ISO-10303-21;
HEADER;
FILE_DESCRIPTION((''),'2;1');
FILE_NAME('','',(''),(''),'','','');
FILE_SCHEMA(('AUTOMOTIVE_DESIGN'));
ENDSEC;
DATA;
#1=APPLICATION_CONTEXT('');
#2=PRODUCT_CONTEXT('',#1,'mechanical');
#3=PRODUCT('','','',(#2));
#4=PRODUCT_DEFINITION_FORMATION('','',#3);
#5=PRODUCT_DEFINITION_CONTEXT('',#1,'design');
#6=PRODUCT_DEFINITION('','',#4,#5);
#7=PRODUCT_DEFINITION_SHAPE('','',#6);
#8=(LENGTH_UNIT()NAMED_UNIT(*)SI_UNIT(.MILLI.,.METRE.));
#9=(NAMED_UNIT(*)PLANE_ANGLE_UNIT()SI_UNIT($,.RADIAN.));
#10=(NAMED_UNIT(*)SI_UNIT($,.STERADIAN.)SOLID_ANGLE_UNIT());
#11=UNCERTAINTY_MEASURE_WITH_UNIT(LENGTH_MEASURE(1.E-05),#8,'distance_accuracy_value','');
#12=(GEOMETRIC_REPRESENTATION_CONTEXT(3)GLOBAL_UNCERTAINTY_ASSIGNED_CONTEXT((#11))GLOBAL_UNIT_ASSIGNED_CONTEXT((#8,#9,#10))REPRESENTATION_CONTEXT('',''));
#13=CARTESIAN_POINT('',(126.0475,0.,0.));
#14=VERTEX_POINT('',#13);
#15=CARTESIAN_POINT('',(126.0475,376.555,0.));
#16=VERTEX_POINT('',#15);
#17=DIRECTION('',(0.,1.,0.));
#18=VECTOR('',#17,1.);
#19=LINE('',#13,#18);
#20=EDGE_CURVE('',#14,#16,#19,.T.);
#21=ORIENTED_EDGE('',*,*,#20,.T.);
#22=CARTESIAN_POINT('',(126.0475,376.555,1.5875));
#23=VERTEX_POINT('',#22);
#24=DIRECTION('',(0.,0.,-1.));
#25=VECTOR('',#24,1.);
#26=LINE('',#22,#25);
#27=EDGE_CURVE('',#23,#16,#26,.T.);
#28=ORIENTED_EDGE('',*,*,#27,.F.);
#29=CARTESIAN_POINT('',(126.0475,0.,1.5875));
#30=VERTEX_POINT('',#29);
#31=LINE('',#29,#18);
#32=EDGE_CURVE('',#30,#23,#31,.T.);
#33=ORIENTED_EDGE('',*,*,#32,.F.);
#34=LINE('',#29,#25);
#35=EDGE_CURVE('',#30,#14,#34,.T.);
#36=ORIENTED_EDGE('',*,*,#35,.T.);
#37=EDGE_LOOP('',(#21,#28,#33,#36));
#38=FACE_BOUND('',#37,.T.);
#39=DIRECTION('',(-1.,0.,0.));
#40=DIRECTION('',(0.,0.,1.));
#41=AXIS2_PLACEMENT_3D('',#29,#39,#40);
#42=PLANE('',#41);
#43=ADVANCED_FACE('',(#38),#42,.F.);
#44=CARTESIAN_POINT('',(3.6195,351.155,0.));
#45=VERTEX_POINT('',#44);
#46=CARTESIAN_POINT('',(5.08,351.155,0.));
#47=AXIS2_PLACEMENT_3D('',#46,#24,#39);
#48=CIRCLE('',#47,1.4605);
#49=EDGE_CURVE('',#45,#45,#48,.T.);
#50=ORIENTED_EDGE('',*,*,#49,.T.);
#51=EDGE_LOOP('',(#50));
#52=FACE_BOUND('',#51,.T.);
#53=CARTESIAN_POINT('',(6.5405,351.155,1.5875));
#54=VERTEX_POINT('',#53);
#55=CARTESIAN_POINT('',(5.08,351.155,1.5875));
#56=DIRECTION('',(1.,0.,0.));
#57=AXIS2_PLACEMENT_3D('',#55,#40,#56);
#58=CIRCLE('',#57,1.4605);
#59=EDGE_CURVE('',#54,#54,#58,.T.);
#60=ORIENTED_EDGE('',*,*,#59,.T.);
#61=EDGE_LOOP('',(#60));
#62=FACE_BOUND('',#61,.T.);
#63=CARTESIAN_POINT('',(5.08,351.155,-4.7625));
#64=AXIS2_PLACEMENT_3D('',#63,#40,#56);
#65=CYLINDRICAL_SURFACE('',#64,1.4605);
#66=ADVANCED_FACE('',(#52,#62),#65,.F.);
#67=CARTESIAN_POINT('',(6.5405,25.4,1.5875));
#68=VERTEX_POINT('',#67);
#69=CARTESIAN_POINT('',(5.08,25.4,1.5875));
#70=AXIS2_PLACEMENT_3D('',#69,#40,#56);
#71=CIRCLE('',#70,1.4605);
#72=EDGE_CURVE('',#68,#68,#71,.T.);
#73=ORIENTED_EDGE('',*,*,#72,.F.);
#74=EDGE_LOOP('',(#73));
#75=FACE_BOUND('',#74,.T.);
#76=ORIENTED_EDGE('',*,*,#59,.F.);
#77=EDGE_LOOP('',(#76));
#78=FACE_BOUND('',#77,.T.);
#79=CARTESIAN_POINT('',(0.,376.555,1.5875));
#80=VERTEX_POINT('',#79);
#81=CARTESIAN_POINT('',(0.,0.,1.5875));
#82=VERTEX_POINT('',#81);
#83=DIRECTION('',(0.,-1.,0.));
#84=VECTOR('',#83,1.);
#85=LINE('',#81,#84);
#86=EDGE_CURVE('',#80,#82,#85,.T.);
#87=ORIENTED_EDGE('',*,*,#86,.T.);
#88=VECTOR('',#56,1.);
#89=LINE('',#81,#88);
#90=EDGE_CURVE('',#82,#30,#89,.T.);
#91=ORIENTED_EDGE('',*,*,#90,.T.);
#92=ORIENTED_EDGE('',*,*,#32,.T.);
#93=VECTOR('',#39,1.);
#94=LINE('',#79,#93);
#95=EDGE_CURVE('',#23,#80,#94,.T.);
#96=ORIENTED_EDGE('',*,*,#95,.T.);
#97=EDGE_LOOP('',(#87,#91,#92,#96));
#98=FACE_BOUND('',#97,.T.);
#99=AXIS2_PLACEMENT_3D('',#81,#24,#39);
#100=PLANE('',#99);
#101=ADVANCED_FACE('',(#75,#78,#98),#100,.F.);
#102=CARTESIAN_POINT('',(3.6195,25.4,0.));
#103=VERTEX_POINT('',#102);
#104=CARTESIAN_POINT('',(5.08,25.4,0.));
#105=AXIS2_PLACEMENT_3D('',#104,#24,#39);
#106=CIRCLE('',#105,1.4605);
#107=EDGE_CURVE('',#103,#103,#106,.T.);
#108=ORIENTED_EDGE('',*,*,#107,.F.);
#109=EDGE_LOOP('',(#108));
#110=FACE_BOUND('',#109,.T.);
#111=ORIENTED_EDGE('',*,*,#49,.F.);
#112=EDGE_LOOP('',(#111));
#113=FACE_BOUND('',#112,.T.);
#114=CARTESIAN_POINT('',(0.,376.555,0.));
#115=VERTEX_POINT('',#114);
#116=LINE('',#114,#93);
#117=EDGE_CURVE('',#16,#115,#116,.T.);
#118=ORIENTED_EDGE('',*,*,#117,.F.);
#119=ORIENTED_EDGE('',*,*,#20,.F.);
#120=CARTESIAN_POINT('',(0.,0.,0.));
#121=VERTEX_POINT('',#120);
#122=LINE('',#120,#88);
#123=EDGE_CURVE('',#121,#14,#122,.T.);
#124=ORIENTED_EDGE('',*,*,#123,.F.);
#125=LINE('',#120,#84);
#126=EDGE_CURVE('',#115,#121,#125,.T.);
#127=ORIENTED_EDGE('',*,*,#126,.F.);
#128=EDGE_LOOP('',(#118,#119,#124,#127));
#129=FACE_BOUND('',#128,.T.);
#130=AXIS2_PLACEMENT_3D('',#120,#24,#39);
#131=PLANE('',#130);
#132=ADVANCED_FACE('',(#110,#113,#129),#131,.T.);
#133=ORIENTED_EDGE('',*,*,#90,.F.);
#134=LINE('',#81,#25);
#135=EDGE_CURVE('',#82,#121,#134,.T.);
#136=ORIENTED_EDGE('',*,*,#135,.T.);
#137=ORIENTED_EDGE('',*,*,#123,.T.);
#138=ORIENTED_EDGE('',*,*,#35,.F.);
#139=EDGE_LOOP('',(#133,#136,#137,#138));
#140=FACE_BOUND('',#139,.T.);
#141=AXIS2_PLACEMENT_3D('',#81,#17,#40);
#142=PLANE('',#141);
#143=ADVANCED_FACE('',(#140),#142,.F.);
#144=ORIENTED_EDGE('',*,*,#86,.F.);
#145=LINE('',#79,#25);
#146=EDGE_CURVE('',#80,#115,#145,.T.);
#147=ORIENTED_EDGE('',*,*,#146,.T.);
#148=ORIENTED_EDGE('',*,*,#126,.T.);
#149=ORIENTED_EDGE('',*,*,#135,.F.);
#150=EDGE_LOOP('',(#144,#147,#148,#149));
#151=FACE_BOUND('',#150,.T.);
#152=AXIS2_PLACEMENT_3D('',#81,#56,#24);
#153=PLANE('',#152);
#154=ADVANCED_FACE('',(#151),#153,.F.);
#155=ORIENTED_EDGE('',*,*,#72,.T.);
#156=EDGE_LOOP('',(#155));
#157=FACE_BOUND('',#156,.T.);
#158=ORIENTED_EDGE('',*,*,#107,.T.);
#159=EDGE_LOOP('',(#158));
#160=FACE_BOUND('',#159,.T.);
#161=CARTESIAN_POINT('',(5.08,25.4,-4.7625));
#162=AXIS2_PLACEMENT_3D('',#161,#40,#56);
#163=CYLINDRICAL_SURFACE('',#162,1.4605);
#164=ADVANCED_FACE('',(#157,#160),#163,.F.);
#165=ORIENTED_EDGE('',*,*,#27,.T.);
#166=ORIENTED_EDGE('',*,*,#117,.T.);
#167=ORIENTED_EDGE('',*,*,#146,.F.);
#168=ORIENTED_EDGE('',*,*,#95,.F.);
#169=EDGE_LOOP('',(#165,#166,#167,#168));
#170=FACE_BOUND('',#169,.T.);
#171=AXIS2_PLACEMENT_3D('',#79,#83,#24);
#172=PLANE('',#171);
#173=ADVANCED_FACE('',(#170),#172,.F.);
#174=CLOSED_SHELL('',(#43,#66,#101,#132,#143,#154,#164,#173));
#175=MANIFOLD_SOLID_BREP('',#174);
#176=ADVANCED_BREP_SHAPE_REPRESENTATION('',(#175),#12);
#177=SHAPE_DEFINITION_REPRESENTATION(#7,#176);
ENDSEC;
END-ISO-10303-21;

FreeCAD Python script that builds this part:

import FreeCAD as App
import Part
import Sketcher

V = App.Vector
Q = App.Units.Quantity

doc = App.newDocument("Part")
params = doc.addObject("Spreadsheet::Sheet", "Params")
for row, (alias, value) in enumerate([
    ("sketch1_height", "14.825 in"),
    ("pad1_length", "0.0625 in"),
    ("sketch2_diameter", "0.115 in"),
    ("pocket1_length", "0.25 in"),
    ("linearpattern_pitch", "12.825 in"),
], start=1):
    params.set(f"A{row}", alias)
    params.set(f"B{row}", "=" + value)
    params.setAlias(f"B{row}", alias)

body = doc.addObject("PartDesign::Body", "Body")

# Sketch on XY plane
sketch1 = body.newObject("Sketcher::SketchObject", "Sketch")
sketch1.AttachmentSupport = (doc.getObject("XY_Plane"), [""])
sketch1.MapMode = "FlatFace"
sketch1.addGeometry(Part.LineSegment(V(0, 377, 0), V(0, 0, 0)), False)
sketch1.addGeometry(Part.LineSegment(V(0, 0, 0), V(126, 0, 0)), False)
sketch1.addGeometry(Part.LineSegment(V(126, 0, 0), V(126, 377, 0)), False)
sketch1.addGeometry(Part.LineSegment(V(126, 377, 0), V(0, 377, 0)), False)
sketch1.addConstraint(Sketcher.Constraint("Coincident", 0, 2, 1, 1))
sketch1.addConstraint(Sketcher.Constraint("Coincident", 1, 2, 2, 1))
sketch1.addConstraint(Sketcher.Constraint("Coincident", 2, 2, 3, 1))
sketch1.addConstraint(Sketcher.Constraint("Coincident", 3, 2, 0, 1))
sketch1.addConstraint(Sketcher.Constraint("Vertical", 0))
sketch1.addConstraint(Sketcher.Constraint("Horizontal", 1))
sketch1.addConstraint(Sketcher.Constraint("Vertical", 2))
sketch1.addConstraint(Sketcher.Constraint("Horizontal", 3))
sketch1.addConstraint(Sketcher.Constraint("Coincident", 0, 2, -1, 1))
sketch1.addConstraint(Sketcher.Constraint("DistanceY", 0, 2, 0, 1, Q("14.825 in")))
sketch1.addConstraint(Sketcher.Constraint("DistanceX", 1, 1, 1, 2, Q("4.9625 in")))
sketch1.setExpression("Constraints[9]", "Params.sketch1_height")
pad1 = body.newObject("PartDesign::Pad", "Pad")
pad1.Profile = sketch1
pad1.setExpression("Length", "Params.pad1_length")

# Sketch on XY plane
sketch2 = body.newObject("Sketcher::SketchObject", "Sketch001")
sketch2.AttachmentSupport = (doc.getObject("XY_Plane"), [""])
sketch2.MapMode = "FlatFace"
sketch2.AttachmentOffset = App.Placement(V(0, 0, 0.0625 * 25.4), App.Rotation())
sketch2.addGeometry(Part.Circle(V(5.1, 351.2, 0), V(0, 0, 1), 1.5), False)
sketch2.addConstraint(Sketcher.Constraint("Diameter", 0, Q("0.115 in")))
sketch2.addConstraint(Sketcher.Constraint("DistanceX", -1, 1, 0, 3, Q("0.2 in")))
sketch2.addConstraint(Sketcher.Constraint("DistanceY", -1, 1, 0, 3, Q("13.825 in")))
sketch2.setExpression("Constraints[0]", "Params.sketch2_diameter")
pocket1 = body.newObject("PartDesign::Pocket", "Pocket")
pocket1.Profile = sketch2
pocket1.setExpression("Length", "Params.pocket1_length")
doc.recompute()

linearpattern = body.newObject("PartDesign::LinearPattern", "LinearPattern")
linearpattern.Originals = [pocket1]
linearpattern.Direction = (doc.getObject("Y_Axis"), [""])
linearpattern.Mode = "offset"
linearpattern.setExpression("Offset", "Params.linearpattern_pitch")
linearpattern.Occurrences = 2
linearpattern.Reversed = True
body.Tip = linearpattern

doc.recompute()
